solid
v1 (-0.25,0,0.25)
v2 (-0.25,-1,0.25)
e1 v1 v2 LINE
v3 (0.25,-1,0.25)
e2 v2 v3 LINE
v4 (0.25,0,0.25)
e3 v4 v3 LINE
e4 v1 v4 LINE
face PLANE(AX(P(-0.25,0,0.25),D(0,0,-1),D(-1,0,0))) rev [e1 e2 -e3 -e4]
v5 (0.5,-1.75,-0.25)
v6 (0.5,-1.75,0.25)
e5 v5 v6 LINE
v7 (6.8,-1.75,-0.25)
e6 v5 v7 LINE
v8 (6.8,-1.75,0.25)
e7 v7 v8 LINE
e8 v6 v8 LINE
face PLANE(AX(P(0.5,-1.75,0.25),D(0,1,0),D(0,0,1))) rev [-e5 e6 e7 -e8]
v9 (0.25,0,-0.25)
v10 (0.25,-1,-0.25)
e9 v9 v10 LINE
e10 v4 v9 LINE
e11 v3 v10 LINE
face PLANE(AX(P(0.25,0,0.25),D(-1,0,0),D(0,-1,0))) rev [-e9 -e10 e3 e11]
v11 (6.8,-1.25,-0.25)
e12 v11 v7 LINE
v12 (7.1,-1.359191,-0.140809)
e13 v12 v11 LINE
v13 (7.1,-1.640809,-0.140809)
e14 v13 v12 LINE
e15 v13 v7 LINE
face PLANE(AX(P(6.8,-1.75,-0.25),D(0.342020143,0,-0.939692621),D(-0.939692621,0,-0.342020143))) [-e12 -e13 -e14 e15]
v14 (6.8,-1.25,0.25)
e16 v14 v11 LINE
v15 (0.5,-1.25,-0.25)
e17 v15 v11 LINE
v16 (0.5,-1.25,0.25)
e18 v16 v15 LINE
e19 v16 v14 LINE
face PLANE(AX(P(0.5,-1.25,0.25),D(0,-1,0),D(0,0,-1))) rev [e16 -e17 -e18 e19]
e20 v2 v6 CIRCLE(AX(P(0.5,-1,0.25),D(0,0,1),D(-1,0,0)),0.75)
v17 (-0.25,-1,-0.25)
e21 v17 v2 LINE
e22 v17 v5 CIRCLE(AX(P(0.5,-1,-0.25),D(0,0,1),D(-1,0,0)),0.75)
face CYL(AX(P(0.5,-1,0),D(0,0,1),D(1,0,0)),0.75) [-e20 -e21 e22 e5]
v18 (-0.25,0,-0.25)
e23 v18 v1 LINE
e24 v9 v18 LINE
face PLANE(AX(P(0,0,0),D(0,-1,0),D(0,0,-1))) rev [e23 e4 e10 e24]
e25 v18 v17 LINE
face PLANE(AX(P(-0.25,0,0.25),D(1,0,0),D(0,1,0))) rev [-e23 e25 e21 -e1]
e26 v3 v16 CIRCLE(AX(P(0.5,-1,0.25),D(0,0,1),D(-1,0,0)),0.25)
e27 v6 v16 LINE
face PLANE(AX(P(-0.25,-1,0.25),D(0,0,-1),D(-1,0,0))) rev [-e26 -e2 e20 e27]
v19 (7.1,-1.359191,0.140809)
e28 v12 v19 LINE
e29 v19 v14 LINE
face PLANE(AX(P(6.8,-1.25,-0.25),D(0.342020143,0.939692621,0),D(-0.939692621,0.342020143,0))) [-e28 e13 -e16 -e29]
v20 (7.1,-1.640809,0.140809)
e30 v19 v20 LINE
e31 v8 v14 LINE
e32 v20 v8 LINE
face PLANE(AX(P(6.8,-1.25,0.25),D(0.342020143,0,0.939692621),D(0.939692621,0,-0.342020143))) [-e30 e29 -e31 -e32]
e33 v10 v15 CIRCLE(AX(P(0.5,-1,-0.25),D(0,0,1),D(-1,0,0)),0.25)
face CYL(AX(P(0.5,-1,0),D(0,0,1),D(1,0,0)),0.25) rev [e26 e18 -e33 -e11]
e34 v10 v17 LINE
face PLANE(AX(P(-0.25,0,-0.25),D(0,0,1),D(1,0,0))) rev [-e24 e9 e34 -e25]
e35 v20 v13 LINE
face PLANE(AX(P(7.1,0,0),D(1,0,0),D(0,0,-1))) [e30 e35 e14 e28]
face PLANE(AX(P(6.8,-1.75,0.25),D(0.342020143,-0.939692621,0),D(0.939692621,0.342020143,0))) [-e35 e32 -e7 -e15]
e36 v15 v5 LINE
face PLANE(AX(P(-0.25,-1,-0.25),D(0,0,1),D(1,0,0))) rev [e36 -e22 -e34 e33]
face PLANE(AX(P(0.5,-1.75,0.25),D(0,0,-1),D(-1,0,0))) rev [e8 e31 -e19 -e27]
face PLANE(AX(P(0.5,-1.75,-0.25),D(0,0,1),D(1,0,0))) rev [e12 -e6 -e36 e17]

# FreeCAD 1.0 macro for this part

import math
import FreeCAD as App
import Part
import Sketcher
from FreeCAD import Vector

doc = App.newDocument("Part")
body = doc.addObject("PartDesign::Body", "Body")

# Sketch on XZ plane
sketch1 = body.newObject("Sketcher::SketchObject", "Sketch")
sketch1.AttachmentSupport = (doc.getObject("XZ_Plane"), [""])
sketch1.MapMode = "FlatFace"
sketch1.addGeometry([
    Part.LineSegment(Vector(-0.2, -0.2, 0), Vector(-0.2, 0.2, 0)),
    Part.LineSegment(Vector(-0.2, 0.2, 0), Vector(0.2, 0.2, 0)),
    Part.LineSegment(Vector(0.2, 0.2, 0), Vector(0.2, -0.2, 0)),
    Part.LineSegment(Vector(0.2, -0.2, 0), Vector(-0.2, -0.2, 0)),
], False)
sketch1.addConstraint([
    Sketcher.Constraint("Coincident", 0, 2, 1, 1),
    Sketcher.Constraint("Coincident", 1, 2, 2, 1),
    Sketcher.Constraint("Coincident", 2, 2, 3, 1),
    Sketcher.Constraint("Coincident", 3, 2, 0, 1),
    Sketcher.Constraint("Vertical", 0),
    Sketcher.Constraint("Horizontal", 1),
    Sketcher.Constraint("Vertical", 2),
    Sketcher.Constraint("Horizontal", 3),
    Sketcher.Constraint("Symmetric", 0, 2, 2, 2, -1, 1),
    Sketcher.Constraint("Equal", 3, 0),
    Sketcher.Constraint("DistanceX", 1, 1, 1, 2, 0.5),
])

# Sketch on XY plane
sketch2 = body.newObject("Sketcher::SketchObject", "Sketch001")
sketch2.AttachmentSupport = (doc.getObject("XY_Plane"), [""])
sketch2.MapMode = "FlatFace"
sketch2.addGeometry([
    Part.LineSegment(Vector(0, 0, 0), Vector(0, -1, 0)),
    Part.ArcOfCircle(Part.Circle(Vector(0.5, -1, 0), Vector(0, 0, 1), 0.5), math.radians(180), math.radians(270)),
    Part.LineSegment(Vector(0.5, -1.5, 0), Vector(6.8, -1.5, 0)),
], False)
sketch2.addConstraint([
    Sketcher.Constraint("Tangent", 0, 2, 1, 1),
    Sketcher.Constraint("Tangent", 1, 2, 2, 1),
    Sketcher.Constraint("Vertical", 0),
    Sketcher.Constraint("Horizontal", 2),
    Sketcher.Constraint("Coincident", 0, 1, -1, 1),
    Sketcher.Constraint("Radius", 1, 0.5),
    Sketcher.Constraint("DistanceY", 0, 2, 0, 1, 1.0),
    Sketcher.Constraint("DistanceX", 2, 1, 2, 2, 6.3),
])
doc.recompute()

additivepipe = body.newObject("PartDesign::AdditivePipe", "AdditivePipe")
additivepipe.Profile = sketch1
additivepipe.Spine = (sketch2, ["Edge1", "Edge2", "Edge3"])

# Sketch on YZ plane
sketch3 = body.newObject("Sketcher::SketchObject", "Sketch002")
sketch3.AttachmentSupport = (doc.getObject("YZ_Plane"), [""])
sketch3.MapMode = "FlatFace"
sketch3.AttachmentOffset = App.Placement(Vector(0, 0, 6.8), App.Rotation())
sketch3.addGeometry([
    Part.LineSegment(Vector(-1.2, 0.2, 0), Vector(-1.8, 0.2, 0)),
    Part.LineSegment(Vector(-1.8, 0.2, 0), Vector(-1.8, -0.2, 0)),
    Part.LineSegment(Vector(-1.8, -0.2, 0), Vector(-1.2, -0.2, 0)),
    Part.LineSegment(Vector(-1.2, -0.2, 0), Vector(-1.2, 0.2, 0)),
], False)
sketch3.addConstraint([
    Sketcher.Constraint("Coincident", 0, 2, 1, 1),
    Sketcher.Constraint("Coincident", 1, 2, 2, 1),
    Sketcher.Constraint("Coincident", 2, 2, 3, 1),
    Sketcher.Constraint("Coincident", 3, 2, 0, 1),
    Sketcher.Constraint("Horizontal", 0),
    Sketcher.Constraint("Vertical", 1),
    Sketcher.Constraint("Horizontal", 2),
    Sketcher.Constraint("Vertical", 3),
    Sketcher.Constraint("Equal", 2, 1),
    Sketcher.Constraint("DistanceX", 0, 2, 0, 1, 0.5),
    Sketcher.Constraint("DistanceX", 0, 2, -1, 1, 1.75),
    Sketcher.Constraint("DistanceY", -1, 1, 0, 2, 0.25),
])
pad1 = body.newObject("PartDesign::Pad", "Pad")
pad1.Profile = sketch3
pad1.Length = 0.3
pad1.TaperAngle = -20

doc.recompute()
